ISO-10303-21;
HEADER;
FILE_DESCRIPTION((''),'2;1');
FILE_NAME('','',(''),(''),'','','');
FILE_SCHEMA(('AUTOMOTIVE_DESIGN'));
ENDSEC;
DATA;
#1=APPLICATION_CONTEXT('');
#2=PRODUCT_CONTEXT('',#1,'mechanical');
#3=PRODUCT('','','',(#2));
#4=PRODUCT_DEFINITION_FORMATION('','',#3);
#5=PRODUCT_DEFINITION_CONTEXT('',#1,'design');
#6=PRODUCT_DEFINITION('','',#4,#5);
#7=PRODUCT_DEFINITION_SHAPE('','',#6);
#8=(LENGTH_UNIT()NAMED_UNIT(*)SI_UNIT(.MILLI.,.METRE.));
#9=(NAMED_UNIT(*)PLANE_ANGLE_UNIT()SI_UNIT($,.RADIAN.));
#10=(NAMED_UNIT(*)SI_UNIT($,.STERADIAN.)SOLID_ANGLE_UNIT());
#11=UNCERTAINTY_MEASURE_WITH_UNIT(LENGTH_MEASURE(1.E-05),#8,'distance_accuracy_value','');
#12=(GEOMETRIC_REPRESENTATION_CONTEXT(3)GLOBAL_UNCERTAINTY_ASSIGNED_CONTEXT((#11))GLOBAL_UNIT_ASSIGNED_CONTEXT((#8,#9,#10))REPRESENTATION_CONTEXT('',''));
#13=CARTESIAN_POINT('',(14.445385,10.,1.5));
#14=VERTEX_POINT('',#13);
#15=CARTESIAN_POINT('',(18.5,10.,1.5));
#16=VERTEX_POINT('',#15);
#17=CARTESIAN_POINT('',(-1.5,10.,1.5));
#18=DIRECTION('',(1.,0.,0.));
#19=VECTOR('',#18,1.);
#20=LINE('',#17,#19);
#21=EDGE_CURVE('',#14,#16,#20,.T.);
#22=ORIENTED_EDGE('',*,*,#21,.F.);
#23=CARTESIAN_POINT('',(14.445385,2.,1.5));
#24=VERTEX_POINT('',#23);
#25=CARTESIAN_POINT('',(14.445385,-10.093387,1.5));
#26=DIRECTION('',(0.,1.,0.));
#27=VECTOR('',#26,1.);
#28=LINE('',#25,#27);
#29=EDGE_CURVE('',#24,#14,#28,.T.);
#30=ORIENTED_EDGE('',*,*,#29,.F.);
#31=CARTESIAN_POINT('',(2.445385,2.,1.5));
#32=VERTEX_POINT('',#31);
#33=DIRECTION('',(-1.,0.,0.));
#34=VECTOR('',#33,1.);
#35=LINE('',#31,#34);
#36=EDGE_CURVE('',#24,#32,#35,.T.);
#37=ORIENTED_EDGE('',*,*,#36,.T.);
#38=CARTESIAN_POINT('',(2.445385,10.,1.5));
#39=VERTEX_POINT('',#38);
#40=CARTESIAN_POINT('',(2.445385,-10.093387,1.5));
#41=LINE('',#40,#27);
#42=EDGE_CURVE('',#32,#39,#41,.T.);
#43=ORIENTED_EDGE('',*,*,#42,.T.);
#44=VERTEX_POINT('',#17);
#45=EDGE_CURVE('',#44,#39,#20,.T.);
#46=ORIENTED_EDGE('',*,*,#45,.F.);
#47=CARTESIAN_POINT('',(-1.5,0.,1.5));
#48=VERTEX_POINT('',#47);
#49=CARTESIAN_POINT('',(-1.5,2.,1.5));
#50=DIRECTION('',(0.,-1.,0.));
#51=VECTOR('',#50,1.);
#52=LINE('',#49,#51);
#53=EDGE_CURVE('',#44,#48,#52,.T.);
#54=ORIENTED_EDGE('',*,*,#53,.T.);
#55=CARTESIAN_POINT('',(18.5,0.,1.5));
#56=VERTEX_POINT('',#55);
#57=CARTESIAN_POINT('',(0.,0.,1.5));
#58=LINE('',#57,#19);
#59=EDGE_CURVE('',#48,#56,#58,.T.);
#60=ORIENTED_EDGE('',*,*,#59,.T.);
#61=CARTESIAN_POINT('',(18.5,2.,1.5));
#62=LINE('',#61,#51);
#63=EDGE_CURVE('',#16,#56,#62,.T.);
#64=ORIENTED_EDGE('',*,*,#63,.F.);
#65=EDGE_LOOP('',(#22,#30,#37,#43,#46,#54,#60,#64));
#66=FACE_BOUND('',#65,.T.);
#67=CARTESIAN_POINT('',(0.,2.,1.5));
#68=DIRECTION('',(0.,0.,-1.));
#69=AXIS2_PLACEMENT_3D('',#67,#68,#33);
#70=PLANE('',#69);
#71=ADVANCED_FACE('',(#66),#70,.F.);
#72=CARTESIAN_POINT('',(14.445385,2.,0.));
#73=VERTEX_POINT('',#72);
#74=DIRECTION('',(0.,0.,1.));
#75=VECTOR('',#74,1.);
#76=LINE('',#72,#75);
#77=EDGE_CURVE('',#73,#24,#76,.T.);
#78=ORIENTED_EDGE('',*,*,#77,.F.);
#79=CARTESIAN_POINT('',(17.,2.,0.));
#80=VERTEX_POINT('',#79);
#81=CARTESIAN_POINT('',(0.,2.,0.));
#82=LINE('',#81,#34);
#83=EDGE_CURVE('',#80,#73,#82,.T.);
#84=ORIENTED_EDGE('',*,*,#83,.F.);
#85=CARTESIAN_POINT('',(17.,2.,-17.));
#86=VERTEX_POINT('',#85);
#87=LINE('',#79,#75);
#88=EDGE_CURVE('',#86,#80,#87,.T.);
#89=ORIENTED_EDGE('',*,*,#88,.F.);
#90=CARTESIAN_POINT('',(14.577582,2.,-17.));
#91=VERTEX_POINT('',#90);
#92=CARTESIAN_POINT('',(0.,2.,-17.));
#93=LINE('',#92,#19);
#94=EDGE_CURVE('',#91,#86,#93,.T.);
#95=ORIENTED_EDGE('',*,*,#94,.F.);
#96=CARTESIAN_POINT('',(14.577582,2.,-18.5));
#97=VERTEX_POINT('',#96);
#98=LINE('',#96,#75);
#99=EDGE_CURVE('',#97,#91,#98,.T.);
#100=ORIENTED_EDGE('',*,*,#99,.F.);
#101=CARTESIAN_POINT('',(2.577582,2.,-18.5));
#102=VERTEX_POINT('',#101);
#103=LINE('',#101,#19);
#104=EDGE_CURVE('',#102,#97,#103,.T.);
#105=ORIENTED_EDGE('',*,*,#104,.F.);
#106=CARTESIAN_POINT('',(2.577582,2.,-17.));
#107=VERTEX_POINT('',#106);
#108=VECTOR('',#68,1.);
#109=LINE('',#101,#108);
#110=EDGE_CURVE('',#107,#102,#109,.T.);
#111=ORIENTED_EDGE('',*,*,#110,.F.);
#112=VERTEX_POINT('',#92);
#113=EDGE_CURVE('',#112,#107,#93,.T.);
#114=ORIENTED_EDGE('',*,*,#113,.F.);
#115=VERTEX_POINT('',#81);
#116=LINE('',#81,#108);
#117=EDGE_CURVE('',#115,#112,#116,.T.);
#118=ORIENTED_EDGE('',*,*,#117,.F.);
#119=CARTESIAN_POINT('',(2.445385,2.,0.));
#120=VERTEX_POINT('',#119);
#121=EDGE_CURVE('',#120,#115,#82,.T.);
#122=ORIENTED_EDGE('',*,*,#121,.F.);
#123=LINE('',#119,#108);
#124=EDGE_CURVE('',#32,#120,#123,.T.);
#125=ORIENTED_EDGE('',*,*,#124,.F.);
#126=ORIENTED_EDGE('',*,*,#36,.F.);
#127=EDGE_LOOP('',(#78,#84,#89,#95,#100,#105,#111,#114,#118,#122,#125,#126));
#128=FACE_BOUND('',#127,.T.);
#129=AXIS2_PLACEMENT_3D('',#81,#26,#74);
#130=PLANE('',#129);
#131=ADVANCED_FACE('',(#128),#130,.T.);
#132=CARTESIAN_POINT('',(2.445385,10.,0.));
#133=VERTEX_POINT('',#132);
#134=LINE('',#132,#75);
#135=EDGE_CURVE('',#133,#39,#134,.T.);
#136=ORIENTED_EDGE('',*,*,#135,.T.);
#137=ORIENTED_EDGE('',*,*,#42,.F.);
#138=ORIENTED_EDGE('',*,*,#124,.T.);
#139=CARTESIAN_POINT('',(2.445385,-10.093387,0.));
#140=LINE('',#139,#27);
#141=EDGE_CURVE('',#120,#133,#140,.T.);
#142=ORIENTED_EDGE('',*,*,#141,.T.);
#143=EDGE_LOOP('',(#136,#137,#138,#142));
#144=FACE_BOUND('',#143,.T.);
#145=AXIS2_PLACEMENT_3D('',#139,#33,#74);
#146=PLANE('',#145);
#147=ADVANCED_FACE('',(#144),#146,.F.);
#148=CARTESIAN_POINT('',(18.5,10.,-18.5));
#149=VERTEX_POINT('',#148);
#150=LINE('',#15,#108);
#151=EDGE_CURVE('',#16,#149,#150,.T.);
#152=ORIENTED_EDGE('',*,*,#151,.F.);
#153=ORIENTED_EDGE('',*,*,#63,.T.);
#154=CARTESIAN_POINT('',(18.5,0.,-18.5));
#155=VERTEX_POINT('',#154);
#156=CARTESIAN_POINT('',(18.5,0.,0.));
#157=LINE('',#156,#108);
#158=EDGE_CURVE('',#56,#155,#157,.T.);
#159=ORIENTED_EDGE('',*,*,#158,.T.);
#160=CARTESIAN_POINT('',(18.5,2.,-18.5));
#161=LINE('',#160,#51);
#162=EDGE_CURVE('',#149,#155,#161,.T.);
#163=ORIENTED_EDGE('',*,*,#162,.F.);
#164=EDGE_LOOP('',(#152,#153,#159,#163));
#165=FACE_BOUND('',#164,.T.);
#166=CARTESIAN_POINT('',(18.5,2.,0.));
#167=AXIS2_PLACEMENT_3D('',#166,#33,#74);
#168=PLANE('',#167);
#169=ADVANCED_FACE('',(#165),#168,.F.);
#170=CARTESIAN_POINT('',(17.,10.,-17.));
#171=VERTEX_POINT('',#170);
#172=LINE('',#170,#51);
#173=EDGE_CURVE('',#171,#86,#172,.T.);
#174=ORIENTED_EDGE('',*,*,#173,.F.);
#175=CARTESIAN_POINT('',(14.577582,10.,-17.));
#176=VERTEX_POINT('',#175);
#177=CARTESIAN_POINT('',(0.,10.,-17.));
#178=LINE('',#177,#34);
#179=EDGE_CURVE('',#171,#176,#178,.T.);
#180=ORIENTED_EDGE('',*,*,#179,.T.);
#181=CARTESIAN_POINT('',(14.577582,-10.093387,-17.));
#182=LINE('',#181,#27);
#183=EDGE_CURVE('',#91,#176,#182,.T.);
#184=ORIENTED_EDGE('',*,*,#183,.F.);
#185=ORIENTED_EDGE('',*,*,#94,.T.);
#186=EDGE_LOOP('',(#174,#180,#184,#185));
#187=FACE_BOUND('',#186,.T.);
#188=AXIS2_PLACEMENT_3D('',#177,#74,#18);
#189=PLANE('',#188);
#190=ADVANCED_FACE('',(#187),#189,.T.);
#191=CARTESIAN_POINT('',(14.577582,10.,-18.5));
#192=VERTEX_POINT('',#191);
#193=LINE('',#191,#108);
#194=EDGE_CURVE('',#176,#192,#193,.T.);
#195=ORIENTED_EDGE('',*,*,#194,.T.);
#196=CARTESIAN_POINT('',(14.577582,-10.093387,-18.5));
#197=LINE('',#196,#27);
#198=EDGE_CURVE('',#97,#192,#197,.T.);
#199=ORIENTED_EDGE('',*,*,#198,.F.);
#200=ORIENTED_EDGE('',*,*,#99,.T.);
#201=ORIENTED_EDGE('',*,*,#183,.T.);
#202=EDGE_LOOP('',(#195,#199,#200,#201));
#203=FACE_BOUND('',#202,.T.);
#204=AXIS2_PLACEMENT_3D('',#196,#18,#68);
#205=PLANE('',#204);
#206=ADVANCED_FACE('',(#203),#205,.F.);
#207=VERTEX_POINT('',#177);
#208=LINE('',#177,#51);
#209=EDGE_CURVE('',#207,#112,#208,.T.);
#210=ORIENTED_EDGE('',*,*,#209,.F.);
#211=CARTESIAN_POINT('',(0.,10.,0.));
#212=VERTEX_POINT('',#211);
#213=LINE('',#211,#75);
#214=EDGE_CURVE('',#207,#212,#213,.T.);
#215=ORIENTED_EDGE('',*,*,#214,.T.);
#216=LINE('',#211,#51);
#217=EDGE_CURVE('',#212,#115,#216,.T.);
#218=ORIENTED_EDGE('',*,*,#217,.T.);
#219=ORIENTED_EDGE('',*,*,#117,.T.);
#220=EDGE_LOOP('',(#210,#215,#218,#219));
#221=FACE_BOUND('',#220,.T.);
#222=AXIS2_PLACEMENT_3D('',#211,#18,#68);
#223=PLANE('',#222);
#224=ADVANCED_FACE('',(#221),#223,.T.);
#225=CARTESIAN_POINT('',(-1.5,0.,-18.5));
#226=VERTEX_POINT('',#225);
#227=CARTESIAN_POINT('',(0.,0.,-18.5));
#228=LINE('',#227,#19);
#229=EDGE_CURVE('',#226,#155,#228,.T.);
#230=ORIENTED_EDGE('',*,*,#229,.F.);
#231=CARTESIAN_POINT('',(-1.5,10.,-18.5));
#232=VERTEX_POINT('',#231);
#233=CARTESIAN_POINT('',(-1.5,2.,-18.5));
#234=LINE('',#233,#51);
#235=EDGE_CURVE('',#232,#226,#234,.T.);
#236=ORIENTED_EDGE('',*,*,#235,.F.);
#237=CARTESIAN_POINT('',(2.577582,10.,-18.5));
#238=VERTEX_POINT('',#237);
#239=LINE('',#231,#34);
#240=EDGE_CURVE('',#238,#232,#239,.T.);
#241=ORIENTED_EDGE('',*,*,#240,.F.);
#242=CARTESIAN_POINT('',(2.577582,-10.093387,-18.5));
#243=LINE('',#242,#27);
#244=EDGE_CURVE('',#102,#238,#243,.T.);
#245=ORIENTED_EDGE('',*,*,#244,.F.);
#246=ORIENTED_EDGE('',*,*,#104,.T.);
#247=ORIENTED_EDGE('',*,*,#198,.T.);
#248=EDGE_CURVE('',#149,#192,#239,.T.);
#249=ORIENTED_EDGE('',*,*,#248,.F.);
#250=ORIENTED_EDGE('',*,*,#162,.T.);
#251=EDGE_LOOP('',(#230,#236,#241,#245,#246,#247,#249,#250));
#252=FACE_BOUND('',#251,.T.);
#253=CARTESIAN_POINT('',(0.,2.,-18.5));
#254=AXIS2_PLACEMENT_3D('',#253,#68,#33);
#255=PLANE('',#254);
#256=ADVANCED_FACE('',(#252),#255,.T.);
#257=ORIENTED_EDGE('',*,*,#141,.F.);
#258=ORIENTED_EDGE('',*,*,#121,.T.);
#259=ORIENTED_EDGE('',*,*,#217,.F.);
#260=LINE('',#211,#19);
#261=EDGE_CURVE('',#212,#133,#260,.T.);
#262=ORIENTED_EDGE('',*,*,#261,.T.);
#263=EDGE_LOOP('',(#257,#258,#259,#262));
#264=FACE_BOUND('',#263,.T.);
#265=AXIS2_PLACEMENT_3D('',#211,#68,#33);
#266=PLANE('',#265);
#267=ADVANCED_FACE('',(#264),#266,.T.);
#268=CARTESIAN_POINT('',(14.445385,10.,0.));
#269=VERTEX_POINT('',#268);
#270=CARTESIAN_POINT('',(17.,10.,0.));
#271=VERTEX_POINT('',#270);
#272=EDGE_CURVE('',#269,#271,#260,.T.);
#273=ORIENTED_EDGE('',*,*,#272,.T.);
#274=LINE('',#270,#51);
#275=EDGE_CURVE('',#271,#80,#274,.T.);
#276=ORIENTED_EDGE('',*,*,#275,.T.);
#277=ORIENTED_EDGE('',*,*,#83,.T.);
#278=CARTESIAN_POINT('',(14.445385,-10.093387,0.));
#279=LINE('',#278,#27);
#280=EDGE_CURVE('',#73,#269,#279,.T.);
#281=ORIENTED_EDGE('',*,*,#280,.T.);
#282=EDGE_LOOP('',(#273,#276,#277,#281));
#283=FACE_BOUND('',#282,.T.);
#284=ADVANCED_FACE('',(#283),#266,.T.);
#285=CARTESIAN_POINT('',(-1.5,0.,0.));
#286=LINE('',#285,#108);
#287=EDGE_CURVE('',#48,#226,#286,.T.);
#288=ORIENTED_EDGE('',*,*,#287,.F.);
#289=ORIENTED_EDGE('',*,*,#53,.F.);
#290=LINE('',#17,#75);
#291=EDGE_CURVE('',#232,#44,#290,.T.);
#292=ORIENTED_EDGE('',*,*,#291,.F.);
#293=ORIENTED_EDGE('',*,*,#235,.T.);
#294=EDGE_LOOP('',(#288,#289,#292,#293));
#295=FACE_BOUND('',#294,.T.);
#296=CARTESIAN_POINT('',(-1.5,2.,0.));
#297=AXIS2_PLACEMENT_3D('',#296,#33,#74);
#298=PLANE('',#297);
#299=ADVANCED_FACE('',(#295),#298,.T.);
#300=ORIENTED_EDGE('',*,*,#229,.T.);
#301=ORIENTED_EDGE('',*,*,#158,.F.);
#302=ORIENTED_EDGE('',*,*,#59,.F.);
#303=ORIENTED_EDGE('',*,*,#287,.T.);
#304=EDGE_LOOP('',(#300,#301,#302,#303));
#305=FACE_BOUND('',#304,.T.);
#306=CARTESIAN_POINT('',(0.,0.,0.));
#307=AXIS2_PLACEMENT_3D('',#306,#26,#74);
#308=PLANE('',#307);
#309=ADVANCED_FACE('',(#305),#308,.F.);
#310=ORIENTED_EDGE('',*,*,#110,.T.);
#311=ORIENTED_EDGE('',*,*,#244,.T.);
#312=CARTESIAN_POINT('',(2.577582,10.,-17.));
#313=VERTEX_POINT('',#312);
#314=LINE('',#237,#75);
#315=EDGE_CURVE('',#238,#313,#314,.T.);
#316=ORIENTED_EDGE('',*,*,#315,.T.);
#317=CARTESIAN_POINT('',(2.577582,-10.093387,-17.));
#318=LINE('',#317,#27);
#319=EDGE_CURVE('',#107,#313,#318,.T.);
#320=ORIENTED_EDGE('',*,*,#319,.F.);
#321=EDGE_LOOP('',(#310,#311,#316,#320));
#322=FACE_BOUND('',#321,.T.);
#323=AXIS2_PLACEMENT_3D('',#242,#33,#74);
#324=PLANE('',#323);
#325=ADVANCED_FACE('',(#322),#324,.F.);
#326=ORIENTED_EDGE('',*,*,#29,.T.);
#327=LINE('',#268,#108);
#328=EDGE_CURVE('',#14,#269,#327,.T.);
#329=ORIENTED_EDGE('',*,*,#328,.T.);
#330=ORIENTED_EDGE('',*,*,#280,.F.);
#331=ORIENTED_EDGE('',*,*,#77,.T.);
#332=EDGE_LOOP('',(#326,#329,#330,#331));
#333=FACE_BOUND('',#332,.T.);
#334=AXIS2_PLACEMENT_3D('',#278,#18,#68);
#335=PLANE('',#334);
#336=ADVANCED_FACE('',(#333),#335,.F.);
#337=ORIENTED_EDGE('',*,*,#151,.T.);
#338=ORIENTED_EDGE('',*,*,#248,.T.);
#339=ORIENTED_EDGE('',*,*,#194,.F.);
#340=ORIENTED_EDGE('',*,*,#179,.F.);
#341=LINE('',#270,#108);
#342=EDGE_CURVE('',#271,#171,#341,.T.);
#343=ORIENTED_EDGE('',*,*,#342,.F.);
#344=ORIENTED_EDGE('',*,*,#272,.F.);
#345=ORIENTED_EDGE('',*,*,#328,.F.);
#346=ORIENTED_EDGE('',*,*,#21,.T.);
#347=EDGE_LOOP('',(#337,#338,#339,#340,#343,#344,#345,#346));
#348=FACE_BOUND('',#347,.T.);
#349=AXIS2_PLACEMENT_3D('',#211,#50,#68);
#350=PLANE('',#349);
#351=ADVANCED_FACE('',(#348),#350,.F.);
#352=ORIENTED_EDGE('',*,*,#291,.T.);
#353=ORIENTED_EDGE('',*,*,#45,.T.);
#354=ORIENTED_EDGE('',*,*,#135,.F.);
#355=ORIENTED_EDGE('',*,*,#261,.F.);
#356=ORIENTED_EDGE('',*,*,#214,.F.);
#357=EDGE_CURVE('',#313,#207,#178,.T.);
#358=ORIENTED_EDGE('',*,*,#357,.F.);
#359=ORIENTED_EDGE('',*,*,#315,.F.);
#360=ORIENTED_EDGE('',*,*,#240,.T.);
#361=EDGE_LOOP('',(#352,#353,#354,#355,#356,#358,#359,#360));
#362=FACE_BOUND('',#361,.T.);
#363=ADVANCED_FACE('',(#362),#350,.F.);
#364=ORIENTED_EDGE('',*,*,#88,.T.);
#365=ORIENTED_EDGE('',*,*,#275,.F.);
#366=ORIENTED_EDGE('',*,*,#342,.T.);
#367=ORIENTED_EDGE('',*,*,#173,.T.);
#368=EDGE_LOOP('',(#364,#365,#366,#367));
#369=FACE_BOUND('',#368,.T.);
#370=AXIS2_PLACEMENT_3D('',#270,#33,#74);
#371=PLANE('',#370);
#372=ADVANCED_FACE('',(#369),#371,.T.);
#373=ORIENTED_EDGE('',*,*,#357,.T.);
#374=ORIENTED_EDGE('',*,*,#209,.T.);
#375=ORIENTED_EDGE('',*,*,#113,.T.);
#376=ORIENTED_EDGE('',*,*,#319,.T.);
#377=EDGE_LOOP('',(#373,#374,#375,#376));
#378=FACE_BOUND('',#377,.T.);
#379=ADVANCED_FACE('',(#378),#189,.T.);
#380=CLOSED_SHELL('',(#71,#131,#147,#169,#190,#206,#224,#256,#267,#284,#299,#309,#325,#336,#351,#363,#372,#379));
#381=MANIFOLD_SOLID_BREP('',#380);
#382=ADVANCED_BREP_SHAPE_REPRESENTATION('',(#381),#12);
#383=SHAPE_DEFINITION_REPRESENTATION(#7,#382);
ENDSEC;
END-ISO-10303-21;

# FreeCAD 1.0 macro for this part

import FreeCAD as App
import Part
import Sketcher
from FreeCAD import Vector
Q = App.Units.Quantity

doc = App.newDocument("Part")
body = doc.addObject("PartDesign::Body", "Body")

sketch1 = body.newObject("Sketcher::SketchObject", "Sketch")
sketch1.AttachmentSupport = (doc.getObject("XZ_Plane"), [""])
sketch1.MapMode = "FlatFace"
sketch1.addGeometry([
    Part.LineSegment(Vector(-2, -18, 0), Vector(-2, 2, 0)),
    Part.LineSegment(Vector(-2, 2, 0), Vector(18, 2, 0)),
    Part.LineSegment(Vector(18, 2, 0), Vector(18, -18, 0)),
    Part.LineSegment(Vector(18, -18, 0), Vector(-2, -18, 0)),
], False)
sketch1.addConstraint([
    Sketcher.Constraint("Coincident", 0, 2, 1, 1),
    Sketcher.Constraint("Coincident", 1, 2, 2, 1),
    Sketcher.Constraint("Coincident", 2, 2, 3, 1),
    Sketcher.Constraint("Coincident", 3, 2, 0, 1),
    Sketcher.Constraint("Vertical", 0),
    Sketcher.Constraint("Horizontal", 1),
    Sketcher.Constraint("Vertical", 2),
    Sketcher.Constraint("Horizontal", 3),
    Sketcher.Constraint("Equal", 3, 0),
    Sketcher.Constraint("DistanceX", 1, 1, 1, 2, Q("20 mm")),
    Sketcher.Constraint("DistanceX", 0, 2, -1, 1, Q("1.5 mm")),
    Sketcher.Constraint("DistanceY", -1, 1, 0, 2, Q("1.5 mm")),
])
pad1 = body.newObject("PartDesign::Pad", "Pad")
pad1.Profile = sketch1
pad1.Length = 2
pad1.Reversed = True

sketch2 = body.newObject("Sketcher::SketchObject", "Sketch001")
sketch2.AttachmentSupport = (doc.getObject("XZ_Plane"), [""])
sketch2.MapMode = "FlatFace"
sketch2.addGeometry([
    Part.LineSegment(Vector(-2, -18, 0), Vector(-2, 2, 0)),
    Part.LineSegment(Vector(-2, 2, 0), Vector(18, 2, 0)),
    Part.LineSegment(Vector(18, 2, 0), Vector(18, -18, 0)),
    Part.LineSegment(Vector(18, -18, 0), Vector(-2, -18, 0)),
    Part.LineSegment(Vector(17, 0, 0), Vector(0, 0, 0)),
    Part.LineSegment(Vector(0, 0, 0), Vector(0, -17, 0)),
    Part.LineSegment(Vector(0, -17, 0), Vector(17, -17, 0)),
    Part.LineSegment(Vector(17, -17, 0), Vector(17, 0, 0)),
], False)
sketch2.addConstraint([
    Sketcher.Constraint("Coincident", 0, 2, 1, 1),
    Sketcher.Constraint("Coincident", 1, 2, 2, 1),
    Sketcher.Constraint("Coincident", 2, 2, 3, 1),
    Sketcher.Constraint("Coincident", 3, 2, 0, 1),
    Sketcher.Constraint("Coincident", 4, 2, 5, 1),
    Sketcher.Constraint("Coincident", 5, 2, 6, 1),
    Sketcher.Constraint("Coincident", 6, 2, 7, 1),
    Sketcher.Constraint("Coincident", 7, 2, 4, 1),
    Sketcher.Constraint("Vertical", 0),
    Sketcher.Constraint("Horizontal", 1),
    Sketcher.Constraint("Vertical", 2),
    Sketcher.Constraint("Horizontal", 3),
    Sketcher.Constraint("Horizontal", 4),
    Sketcher.Constraint("Vertical", 5),
    Sketcher.Constraint("Horizontal", 6),
    Sketcher.Constraint("Vertical", 7),
    Sketcher.Constraint("Coincident", 4, 2, -1, 1),
    Sketcher.Constraint("Equal", 3, 0),
    Sketcher.Constraint("Equal", 6, 5),
    Sketcher.Constraint("DistanceX", 1, 1, 1, 2, Q("20 mm")),
    Sketcher.Constraint("DistanceX", 4, 2, 4, 1, Q("17 mm")),
    Sketcher.Constraint("DistanceX", 0, 2, -1, 1, Q("1.5 mm")),
    Sketcher.Constraint("DistanceY", -1, 1, 0, 2, Q("1.5 mm")),
])
pad2 = body.newObject("PartDesign::Pad", "Pad001")
pad2.Profile = sketch2
pad2.Length = 10
pad2.Reversed = True

sketch3 = body.newObject("Sketcher::SketchObject", "Sketch002")
sketch3.AttachmentSupport = (doc.getObject("XZ_Plane"), [""])
sketch3.MapMode = "FlatFace"
sketch3.AttachmentOffset = App.Placement(Vector(0, 0, -10), App.Rotation())
sketch3.addGeometry([
    Part.LineSegment(Vector(2.6, -18.5, 0), Vector(2.6, -17, 0)),
    Part.LineSegment(Vector(2.6, -17, 0), Vector(14.6, -17, 0)),
    Part.LineSegment(Vector(14.6, -17, 0), Vector(14.6, -18.5, 0)),
    Part.LineSegment(Vector(14.6, -18.5, 0), Vector(2.6, -18.5, 0)),
    Part.LineSegment(Vector(2.4, 0, 0), Vector(2.4, 1.5, 0)),
    Part.LineSegment(Vector(2.4, 1.5, 0), Vector(14.4, 1.5, 0)),
    Part.LineSegment(Vector(14.4, 1.5, 0), Vector(14.4, 0, 0)),
    Part.LineSegment(Vector(14.4, 0, 0), Vector(2.4, 0, 0)),
], False)
sketch3.addConstraint([
    Sketcher.Constraint("Coincident", 0, 2, 1, 1),
    Sketcher.Constraint("Coincident", 1, 2, 2, 1),
    Sketcher.Constraint("Coincident", 2, 2, 3, 1),
    Sketcher.Constraint("Coincident", 3, 2, 0, 1),
    Sketcher.Constraint("Coincident", 4, 2, 5, 1),
    Sketcher.Constraint("Coincident", 5, 2, 6, 1),
    Sketcher.Constraint("Coincident", 6, 2, 7, 1),
    Sketcher.Constraint("Coincident", 7, 2, 4, 1),
    Sketcher.Constraint("Vertical", 0),
    Sketcher.Constraint("Horizontal", 1),
    Sketcher.Constraint("Vertical", 2),
    Sketcher.Constraint("Horizontal", 3),
    Sketcher.Constraint("Vertical", 4),
    Sketcher.Constraint("Horizontal", 5),
    Sketcher.Constraint("Vertical", 6),
    Sketcher.Constraint("Horizontal", 7),
    Sketcher.Constraint("PointOnObject", 6, 2, -1),
    Sketcher.Constraint("Equal", 3, 5),
    Sketcher.Constraint("Equal", 2, 4),
    Sketcher.Constraint("DistanceX", 1, 1, 1, 2, Q("12 mm")),
    Sketcher.Constraint("DistanceY", 0, 1, 0, 2, Q("1.5 mm")),
    Sketcher.Constraint("DistanceY", 0, 2, -1, 1, Q("17 mm")),
    Sketcher.Constraint("DistanceX", -1, 1, 0, 2, Q("2.577582 mm")),
    Sketcher.Constraint("DistanceX", -1, 1, 4, 2, Q("2.445385 mm")),
])
pocket1 = body.newObject("PartDesign::Pocket", "Pocket")
pocket1.Profile = sketch3
pocket1.Length = 8
pocket1.Reversed = True

doc.recompute()
